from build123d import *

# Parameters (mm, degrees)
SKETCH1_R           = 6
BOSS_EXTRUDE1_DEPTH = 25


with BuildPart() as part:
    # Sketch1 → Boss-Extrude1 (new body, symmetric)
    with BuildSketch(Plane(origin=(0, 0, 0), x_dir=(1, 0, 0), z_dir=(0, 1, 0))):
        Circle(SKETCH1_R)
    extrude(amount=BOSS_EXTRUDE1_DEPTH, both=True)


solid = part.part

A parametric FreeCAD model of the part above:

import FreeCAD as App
import Part
import Sketcher
Q = App.Units.Quantity

doc = App.newDocument("Part")
body = doc.addObject("PartDesign::Body", "Body")

# Sketch on XZ plane
sketch1 = body.newObject("Sketcher::SketchObject", "Sketch")
sketch1.AttachmentSupport = (doc.getObject("XZ_Plane"), [""])
sketch1.MapMode = "FlatFace"
sketch1.addGeometry(Part.Circle(App.Vector(0, 0, 0), App.Vector(0, 0, 1), 6), False)
sketch1.addConstraint([
    Sketcher.Constraint("Coincident", 0, 3, -1, 1),
    Sketcher.Constraint("Diameter", 0, Q("12 mm")),
])
pad1 = body.newObject("PartDesign::Pad", "Pad")
pad1.Profile = sketch1
pad1.Length = 50
pad1.Midplane = True

doc.recompute()
